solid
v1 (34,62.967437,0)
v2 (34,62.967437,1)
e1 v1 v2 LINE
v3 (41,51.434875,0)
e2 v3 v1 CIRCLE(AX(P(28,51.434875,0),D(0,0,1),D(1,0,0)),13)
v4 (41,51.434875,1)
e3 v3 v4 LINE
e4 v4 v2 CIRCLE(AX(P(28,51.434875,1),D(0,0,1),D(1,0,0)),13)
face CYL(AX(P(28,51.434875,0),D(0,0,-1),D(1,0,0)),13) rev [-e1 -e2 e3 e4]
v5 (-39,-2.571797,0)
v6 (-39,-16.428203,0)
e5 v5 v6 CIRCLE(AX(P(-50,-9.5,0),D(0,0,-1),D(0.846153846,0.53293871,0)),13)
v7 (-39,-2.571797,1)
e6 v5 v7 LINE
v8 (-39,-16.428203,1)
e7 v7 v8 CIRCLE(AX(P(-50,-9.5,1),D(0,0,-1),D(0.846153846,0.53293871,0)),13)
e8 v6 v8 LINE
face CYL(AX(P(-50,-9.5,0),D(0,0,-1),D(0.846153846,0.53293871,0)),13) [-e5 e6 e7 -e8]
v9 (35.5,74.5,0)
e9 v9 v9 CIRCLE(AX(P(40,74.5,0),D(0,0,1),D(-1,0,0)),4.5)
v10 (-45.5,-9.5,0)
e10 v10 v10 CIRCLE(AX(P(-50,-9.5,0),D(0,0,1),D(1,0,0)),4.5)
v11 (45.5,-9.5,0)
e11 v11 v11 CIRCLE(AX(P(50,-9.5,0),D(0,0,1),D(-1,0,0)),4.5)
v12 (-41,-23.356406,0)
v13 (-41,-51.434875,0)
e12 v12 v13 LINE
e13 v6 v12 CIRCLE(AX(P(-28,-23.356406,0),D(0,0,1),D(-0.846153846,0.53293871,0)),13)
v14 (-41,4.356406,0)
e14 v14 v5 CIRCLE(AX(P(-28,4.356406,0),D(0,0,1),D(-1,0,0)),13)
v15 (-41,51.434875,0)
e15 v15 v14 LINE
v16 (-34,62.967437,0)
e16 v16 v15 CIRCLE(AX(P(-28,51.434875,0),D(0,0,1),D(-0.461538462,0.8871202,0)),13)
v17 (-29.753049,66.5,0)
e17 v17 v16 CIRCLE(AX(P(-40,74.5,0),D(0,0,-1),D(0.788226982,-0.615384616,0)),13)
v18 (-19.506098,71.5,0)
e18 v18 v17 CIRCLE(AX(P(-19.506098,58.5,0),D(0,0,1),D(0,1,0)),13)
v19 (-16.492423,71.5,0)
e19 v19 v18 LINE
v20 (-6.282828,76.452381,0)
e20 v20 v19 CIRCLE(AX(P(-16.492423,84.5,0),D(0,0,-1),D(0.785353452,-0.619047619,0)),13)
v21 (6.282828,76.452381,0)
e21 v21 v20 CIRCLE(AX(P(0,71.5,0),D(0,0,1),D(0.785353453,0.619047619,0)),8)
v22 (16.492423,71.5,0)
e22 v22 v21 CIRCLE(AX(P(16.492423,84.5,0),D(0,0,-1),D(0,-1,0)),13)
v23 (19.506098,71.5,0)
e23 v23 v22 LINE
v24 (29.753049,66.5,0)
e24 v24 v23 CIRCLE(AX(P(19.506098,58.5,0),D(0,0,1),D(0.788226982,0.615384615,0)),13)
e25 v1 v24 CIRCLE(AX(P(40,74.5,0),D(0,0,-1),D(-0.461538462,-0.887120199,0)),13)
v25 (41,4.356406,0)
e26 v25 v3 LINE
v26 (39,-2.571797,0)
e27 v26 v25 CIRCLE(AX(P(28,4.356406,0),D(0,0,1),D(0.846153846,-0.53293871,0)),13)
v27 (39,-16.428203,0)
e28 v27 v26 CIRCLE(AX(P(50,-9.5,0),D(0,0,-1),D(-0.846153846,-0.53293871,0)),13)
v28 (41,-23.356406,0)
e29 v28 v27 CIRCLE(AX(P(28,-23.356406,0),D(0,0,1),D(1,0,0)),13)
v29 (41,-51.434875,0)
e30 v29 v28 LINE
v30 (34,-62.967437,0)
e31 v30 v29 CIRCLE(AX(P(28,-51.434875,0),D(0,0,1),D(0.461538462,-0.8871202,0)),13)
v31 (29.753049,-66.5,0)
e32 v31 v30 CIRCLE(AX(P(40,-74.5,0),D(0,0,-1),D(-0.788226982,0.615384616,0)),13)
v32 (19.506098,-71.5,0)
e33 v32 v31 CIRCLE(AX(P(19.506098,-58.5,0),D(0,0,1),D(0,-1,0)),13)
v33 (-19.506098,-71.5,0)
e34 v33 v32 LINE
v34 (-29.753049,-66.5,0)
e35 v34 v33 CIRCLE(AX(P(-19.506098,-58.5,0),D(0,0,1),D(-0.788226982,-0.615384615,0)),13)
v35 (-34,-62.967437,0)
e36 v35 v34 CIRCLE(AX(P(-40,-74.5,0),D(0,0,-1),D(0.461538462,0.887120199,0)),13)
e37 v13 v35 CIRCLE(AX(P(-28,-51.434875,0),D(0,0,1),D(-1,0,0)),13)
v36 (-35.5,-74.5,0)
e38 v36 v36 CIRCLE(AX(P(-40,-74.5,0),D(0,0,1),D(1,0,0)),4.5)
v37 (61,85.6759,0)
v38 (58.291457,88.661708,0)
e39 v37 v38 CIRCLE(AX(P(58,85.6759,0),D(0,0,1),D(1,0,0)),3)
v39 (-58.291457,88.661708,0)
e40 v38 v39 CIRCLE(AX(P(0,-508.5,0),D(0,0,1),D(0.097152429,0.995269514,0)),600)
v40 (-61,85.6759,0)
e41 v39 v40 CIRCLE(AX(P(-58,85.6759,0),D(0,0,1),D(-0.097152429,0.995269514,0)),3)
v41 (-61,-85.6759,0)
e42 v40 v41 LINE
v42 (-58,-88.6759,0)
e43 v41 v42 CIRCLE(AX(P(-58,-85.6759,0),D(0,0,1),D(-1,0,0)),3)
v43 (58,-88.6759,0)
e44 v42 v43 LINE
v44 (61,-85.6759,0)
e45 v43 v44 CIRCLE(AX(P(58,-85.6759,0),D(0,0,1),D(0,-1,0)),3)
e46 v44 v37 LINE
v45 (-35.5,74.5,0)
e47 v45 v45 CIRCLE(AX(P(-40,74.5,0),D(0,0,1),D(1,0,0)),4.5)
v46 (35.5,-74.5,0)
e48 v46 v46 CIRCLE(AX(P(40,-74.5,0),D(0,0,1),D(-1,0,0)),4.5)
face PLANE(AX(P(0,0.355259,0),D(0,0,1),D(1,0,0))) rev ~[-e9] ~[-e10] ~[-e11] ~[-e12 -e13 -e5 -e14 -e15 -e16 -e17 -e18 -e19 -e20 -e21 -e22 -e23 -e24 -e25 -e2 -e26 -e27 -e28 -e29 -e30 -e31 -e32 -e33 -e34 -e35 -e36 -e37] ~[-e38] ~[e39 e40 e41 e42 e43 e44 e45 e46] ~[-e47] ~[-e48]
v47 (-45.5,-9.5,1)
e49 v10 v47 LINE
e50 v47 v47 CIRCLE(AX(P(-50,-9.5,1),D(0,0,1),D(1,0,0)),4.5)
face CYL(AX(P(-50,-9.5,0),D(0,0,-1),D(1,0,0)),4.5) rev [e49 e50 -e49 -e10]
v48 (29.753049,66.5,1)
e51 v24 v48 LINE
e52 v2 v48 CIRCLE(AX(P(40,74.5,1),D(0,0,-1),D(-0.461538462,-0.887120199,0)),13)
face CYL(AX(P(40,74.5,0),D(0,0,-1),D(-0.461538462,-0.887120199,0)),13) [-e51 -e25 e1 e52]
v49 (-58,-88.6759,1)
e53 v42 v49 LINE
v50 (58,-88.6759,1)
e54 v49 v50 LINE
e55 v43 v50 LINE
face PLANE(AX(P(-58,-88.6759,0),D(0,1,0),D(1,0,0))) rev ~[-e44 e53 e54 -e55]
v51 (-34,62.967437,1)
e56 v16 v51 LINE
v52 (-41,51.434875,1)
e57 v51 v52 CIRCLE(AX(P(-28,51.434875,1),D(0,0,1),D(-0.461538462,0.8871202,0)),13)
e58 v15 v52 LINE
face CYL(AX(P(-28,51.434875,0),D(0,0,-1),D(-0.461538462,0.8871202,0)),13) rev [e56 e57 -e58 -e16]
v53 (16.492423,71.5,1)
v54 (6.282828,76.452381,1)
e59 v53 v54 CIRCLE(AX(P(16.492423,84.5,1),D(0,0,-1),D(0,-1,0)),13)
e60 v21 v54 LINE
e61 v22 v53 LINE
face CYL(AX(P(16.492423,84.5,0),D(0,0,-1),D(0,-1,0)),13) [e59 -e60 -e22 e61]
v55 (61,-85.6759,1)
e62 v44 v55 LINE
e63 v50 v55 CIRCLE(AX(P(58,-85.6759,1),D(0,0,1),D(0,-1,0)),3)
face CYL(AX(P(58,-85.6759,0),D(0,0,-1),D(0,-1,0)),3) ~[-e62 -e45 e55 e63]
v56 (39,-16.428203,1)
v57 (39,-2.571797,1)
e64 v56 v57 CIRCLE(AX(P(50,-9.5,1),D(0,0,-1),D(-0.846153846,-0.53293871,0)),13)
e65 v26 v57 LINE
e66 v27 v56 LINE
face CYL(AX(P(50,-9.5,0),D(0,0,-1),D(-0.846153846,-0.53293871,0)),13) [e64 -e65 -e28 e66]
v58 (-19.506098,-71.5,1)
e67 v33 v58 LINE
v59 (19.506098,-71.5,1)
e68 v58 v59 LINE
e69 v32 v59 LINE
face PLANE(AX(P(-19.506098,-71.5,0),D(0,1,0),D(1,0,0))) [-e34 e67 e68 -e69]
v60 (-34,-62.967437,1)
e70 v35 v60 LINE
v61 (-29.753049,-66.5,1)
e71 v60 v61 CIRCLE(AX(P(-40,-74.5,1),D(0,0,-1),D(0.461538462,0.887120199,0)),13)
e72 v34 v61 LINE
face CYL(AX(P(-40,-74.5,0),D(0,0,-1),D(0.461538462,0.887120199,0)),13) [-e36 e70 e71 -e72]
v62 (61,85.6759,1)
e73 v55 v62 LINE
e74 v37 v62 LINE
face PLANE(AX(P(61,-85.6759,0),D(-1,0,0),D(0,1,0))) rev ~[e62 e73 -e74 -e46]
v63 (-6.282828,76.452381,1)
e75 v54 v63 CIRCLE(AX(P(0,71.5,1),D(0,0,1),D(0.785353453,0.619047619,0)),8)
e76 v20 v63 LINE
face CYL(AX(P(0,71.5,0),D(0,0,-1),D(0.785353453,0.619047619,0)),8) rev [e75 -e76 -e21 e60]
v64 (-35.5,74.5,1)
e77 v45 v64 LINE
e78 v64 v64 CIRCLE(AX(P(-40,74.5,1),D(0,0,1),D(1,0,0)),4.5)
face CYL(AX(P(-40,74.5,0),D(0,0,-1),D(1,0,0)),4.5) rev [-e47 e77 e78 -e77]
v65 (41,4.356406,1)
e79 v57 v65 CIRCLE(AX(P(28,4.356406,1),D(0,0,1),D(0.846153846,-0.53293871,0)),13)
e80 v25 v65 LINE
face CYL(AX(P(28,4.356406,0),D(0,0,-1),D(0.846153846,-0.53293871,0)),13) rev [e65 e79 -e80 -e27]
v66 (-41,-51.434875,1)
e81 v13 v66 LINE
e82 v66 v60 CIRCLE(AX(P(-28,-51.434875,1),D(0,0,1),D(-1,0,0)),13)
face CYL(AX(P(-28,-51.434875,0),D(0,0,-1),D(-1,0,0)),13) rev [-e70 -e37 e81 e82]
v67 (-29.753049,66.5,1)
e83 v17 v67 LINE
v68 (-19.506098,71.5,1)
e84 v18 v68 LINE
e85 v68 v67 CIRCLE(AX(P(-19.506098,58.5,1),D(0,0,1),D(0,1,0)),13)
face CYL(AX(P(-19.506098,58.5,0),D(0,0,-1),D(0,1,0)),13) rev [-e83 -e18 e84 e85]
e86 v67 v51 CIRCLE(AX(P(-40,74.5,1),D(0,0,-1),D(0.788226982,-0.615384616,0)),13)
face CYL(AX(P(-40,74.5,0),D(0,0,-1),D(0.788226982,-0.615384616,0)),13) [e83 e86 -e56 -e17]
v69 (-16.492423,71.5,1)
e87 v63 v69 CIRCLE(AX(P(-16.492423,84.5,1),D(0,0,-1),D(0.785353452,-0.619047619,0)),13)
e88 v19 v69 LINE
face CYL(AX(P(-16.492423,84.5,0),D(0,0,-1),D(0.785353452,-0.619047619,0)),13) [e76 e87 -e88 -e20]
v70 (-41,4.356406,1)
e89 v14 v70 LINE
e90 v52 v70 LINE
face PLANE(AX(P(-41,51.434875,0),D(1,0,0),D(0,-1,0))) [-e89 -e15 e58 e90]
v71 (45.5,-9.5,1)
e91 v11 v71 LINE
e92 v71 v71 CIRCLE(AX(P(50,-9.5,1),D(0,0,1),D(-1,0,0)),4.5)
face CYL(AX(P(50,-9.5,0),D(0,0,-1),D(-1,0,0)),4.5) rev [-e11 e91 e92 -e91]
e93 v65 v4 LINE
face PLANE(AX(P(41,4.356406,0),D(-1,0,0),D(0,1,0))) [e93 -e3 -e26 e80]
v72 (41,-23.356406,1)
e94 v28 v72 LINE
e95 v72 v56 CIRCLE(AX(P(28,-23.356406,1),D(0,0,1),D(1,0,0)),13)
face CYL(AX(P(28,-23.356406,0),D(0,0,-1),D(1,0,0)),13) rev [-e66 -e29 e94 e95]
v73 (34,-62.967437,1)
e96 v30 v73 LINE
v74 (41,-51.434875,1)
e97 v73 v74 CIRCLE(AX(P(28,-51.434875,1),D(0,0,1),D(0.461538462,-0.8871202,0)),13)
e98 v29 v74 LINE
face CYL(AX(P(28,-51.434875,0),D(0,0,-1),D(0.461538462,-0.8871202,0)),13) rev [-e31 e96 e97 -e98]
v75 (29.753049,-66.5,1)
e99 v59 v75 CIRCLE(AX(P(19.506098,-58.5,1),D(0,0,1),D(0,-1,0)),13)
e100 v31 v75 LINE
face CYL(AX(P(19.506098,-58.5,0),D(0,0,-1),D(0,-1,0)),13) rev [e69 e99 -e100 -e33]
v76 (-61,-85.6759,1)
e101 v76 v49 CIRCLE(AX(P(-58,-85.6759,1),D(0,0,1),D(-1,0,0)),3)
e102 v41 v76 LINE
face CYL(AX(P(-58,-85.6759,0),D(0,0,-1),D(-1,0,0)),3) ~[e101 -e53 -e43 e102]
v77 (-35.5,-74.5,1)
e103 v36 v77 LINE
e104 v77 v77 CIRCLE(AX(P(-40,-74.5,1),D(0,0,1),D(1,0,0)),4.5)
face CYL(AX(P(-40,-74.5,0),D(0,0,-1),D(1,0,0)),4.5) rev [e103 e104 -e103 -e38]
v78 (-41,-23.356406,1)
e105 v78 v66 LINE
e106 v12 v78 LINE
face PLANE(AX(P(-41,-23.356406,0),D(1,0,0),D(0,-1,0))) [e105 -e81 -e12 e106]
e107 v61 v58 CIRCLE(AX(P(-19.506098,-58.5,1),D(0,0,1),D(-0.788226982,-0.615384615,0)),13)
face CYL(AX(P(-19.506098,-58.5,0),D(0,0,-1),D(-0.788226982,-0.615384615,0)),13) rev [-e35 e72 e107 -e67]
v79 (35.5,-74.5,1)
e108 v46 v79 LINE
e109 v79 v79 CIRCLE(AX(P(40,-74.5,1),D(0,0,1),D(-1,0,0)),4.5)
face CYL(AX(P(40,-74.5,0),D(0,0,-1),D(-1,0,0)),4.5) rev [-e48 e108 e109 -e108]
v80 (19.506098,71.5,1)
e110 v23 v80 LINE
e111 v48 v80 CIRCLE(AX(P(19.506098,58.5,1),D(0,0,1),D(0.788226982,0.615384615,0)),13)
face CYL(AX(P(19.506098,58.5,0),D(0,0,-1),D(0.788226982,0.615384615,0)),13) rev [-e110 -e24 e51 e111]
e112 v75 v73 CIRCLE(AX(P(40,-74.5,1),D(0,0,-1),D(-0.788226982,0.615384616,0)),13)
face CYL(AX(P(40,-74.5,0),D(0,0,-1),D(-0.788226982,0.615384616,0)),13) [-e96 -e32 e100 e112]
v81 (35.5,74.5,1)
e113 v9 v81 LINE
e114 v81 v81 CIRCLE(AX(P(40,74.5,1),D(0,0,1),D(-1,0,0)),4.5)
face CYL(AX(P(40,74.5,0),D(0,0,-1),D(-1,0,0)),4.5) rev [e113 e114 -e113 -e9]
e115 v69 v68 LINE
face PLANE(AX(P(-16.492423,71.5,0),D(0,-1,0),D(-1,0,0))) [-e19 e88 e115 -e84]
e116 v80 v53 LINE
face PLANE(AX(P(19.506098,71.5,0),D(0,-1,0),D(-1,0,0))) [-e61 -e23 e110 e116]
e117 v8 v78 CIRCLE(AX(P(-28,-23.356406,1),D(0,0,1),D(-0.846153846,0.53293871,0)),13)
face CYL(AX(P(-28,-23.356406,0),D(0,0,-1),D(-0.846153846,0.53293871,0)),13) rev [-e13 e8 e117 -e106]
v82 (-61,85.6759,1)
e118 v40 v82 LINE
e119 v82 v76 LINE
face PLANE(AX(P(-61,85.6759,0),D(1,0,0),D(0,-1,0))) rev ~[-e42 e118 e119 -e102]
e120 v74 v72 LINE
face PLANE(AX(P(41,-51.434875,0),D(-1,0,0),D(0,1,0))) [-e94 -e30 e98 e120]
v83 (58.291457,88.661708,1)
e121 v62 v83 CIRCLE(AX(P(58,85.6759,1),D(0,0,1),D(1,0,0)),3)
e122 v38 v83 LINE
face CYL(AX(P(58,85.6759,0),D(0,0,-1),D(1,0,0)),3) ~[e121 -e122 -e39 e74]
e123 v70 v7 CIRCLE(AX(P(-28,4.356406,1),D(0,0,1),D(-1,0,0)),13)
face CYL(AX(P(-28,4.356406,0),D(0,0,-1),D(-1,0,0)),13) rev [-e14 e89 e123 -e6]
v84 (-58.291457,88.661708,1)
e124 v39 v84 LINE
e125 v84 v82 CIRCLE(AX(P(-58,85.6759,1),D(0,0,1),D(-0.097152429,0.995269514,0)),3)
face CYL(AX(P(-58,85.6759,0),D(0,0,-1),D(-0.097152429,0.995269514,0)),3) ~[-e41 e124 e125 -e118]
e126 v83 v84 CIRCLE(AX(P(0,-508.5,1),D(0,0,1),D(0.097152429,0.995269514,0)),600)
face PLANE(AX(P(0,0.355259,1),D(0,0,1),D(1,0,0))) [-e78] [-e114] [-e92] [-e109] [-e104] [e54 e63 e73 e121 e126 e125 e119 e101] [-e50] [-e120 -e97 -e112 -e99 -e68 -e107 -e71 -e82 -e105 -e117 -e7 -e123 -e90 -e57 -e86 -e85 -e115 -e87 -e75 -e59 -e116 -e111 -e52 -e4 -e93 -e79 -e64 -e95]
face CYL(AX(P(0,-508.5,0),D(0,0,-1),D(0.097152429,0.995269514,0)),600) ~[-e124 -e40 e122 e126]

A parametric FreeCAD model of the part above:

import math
import FreeCAD as App
import Part
import Sketcher

V = App.Vector

doc = App.newDocument("Part")
body = doc.addObject("PartDesign::Body", "Body")

sketch1 = body.newObject("Sketcher::SketchObject", "Sketch")
sketch1.AttachmentSupport = (doc.getObject("XY_Plane"), [""])
sketch1.MapMode = "FlatFace"
sketch1.addGeometry([
    Part.LineSegment(V(-61, 85.7, 0), V(-61, -85.7, 0)),
    Part.ArcOfCircle(Part.Circle(V(-58, -85.7, 0), V(0, 0, 1), 3), math.radians(180), math.radians(270)),
    Part.LineSegment(V(-58, -88.7, 0), V(58, -88.7, 0)),
    Part.ArcOfCircle(Part.Circle(V(58, -85.7, 0), V(0, 0, 1), 3), math.radians(-90), math.radians(0)),
    Part.LineSegment(V(61, -85.7, 0), V(61, 85.7, 0)),
    Part.ArcOfCircle(Part.Circle(V(58, 85.7, 0), V(0, 0, 1), 3), math.radians(0), math.radians(84)),
    Part.ArcOfCircle(Part.Circle(V(0, -508.5, 0), V(0, 0, 1), 600), math.radians(84.42), math.radians(95.58)),
    Part.ArcOfCircle(Part.Circle(V(-58, 85.7, 0), V(0, 0, 1), 3), math.radians(96), math.radians(180)),
    Part.Circle(V(-40, -74.5, 0), V(0, 0, 1), 4.5),
    Part.Circle(V(-50, -9.5, 0), V(0, 0, 1), 4.5),
    Part.Circle(V(40, -74.5, 0), V(0, 0, 1), 4.5),
    Part.Circle(V(50, -9.5, 0), V(0, 0, 1), 4.5),
    Part.Circle(V(-40, 74.5, 0), V(0, 0, 1), 4.5),
    Part.LineSegment(V(-41, -51.4, 0), V(-41, -23.4, 0)),
    Part.ArcOfCircle(Part.Circle(V(-28, -23.4, 0), V(0, 0, 1), 13), math.radians(148), math.radians(180)),
    Part.ArcOfCircle(Part.Circle(V(-50, -9.5, 0), V(0, 0, 1), 13), math.radians(-32), math.radians(32)),
    Part.ArcOfCircle(Part.Circle(V(-28, 4.4, 0), V(0, 0, 1), 13), math.radians(180), math.radians(212)),
    Part.LineSegment(V(-41, 4.4, 0), V(-41, 51.4, 0)),
    Part.ArcOfCircle(Part.Circle(V(-28, 51.4, 0), V(0, 0, 1), 13), math.radians(117), math.radians(180)),
    Part.ArcOfCircle(Part.Circle(V(-40, 74.5, 0), V(0, 0, 1), 13), math.radians(-63), math.radians(-38)),
    Part.ArcOfCircle(Part.Circle(V(-19.5, 58.5, 0), V(0, 0, 1), 13), math.radians(90), math.radians(142)),
    Part.LineSegment(V(-19.5, 71.5, 0), V(-16.5, 71.5, 0)),
    Part.ArcOfCircle(Part.Circle(V(-16.5, 84.5, 0), V(0, 0, 1), 13), math.radians(-90), math.radians(-38)),
    Part.ArcOfCircle(Part.Circle(V(0, 71.5, 0), V(0, 0, 1), 8), math.radians(38), math.radians(142)),
    Part.ArcOfCircle(Part.Circle(V(16.5, 84.5, 0), V(0, 0, 1), 13), math.radians(-142), math.radians(-90)),
    Part.LineSegment(V(16.5, 71.5, 0), V(19.5, 71.5, 0)),
    Part.ArcOfCircle(Part.Circle(V(19.5, 58.5, 0), V(0, 0, 1), 13), math.radians(38), math.radians(90)),
    Part.ArcOfCircle(Part.Circle(V(40, 74.5, 0), V(0, 0, 1), 13), math.radians(-142), math.radians(-117)),
    Part.ArcOfCircle(Part.Circle(V(28, 51.4, 0), V(0, 0, 1), 13), math.radians(0), math.radians(63)),
    Part.LineSegment(V(41, 51.4, 0), V(41, 4.4, 0)),
    Part.ArcOfCircle(Part.Circle(V(28, 4.4, 0), V(0, 0, 1), 13), math.radians(-32), math.radians(0)),
    Part.ArcOfCircle(Part.Circle(V(50, -9.5, 0), V(0, 0, 1), 13), math.radians(148), math.radians(212)),
    Part.ArcOfCircle(Part.Circle(V(28, -23.4, 0), V(0, 0, 1), 13), math.radians(0), math.radians(32)),
    Part.LineSegment(V(41, -23.4, 0), V(41, -51.4, 0)),
    Part.ArcOfCircle(Part.Circle(V(28, -51.4, 0), V(0, 0, 1), 13), math.radians(-63), math.radians(0)),
    Part.ArcOfCircle(Part.Circle(V(40, -74.5, 0), V(0, 0, 1), 13), math.radians(117), math.radians(142)),
    Part.ArcOfCircle(Part.Circle(V(19.5, -58.5, 0), V(0, 0, 1), 13), math.radians(-90), math.radians(-38)),
    Part.LineSegment(V(19.5, -71.5, 0), V(-19.5, -71.5, 0)),
    Part.ArcOfCircle(Part.Circle(V(-19.5, -58.5, 0), V(0, 0, 1), 13), math.radians(-142), math.radians(-90)),
    Part.ArcOfCircle(Part.Circle(V(-40, -74.5, 0), V(0, 0, 1), 13), math.radians(38), math.radians(63)),
    Part.ArcOfCircle(Part.Circle(V(-28, -51.4, 0), V(0, 0, 1), 13), math.radians(-180), math.radians(-117)),
    Part.Circle(V(40, 74.5, 0), V(0, 0, 1), 4.5),
], False)
sketch1.addConstraint([
    Sketcher.Constraint("Tangent", 0, 2, 1, 1),
    Sketcher.Constraint("Tangent", 1, 2, 2, 1),
    Sketcher.Constraint("Tangent", 2, 2, 3, 1),
    Sketcher.Constraint("Tangent", 3, 2, 4, 1),
    Sketcher.Constraint("Tangent", 4, 2, 5, 1),
    Sketcher.Constraint("Tangent", 5, 2, 6, 1),
    Sketcher.Constraint("Tangent", 6, 2, 7, 1),
    Sketcher.Constraint("Tangent", 7, 2, 0, 1),
    Sketcher.Constraint("Tangent", 13, 2, 14, 2),
    Sketcher.Constraint("Tangent", 14, 1, 15, 1),
    Sketcher.Constraint("Tangent", 15, 2, 16, 2),
    Sketcher.Constraint("Tangent", 16, 1, 17, 1),
    Sketcher.Constraint("Tangent", 17, 2, 18, 2),
    Sketcher.Constraint("Tangent", 18, 1, 19, 1),
    Sketcher.Constraint("Tangent", 19, 2, 20, 2),
    Sketcher.Constraint("Tangent", 20, 1, 21, 1),
    Sketcher.Constraint("Tangent", 21, 2, 22, 1),
    Sketcher.Constraint("Tangent", 22, 2, 23, 2),
    Sketcher.Constraint("Tangent", 23, 1, 24, 1),
    Sketcher.Constraint("Tangent", 24, 2, 25, 1),
    Sketcher.Constraint("Tangent", 25, 2, 26, 2),
    Sketcher.Constraint("Tangent", 26, 1, 27, 1),
    Sketcher.Constraint("Tangent", 27, 2, 28, 2),
    Sketcher.Constraint("Tangent", 28, 1, 29, 1),
    Sketcher.Constraint("Tangent", 29, 2, 30, 2),
    Sketcher.Constraint("Tangent", 30, 1, 31, 1),
    Sketcher.Constraint("Tangent", 31, 2, 32, 2),
    Sketcher.Constraint("Tangent", 32, 1, 33, 1),
    Sketcher.Constraint("Tangent", 33, 2, 34, 2),
    Sketcher.Constraint("Tangent", 34, 1, 35, 1),
    Sketcher.Constraint("Tangent", 35, 2, 36, 2),
    Sketcher.Constraint("Tangent", 36, 1, 37, 1),
    Sketcher.Constraint("Tangent", 37, 2, 38, 2),
    Sketcher.Constraint("Tangent", 38, 1, 39, 1),
    Sketcher.Constraint("Tangent", 39, 2, 40, 2),
    Sketcher.Constraint("Tangent", 40, 1, 13, 1),
    Sketcher.Constraint("Vertical", 0),
    Sketcher.Constraint("Horizontal", 2),
    Sketcher.Constraint("Vertical", 4),
    Sketcher.Constraint("Vertical", 13),
    Sketcher.Constraint("Vertical", 17),
    Sketcher.Constraint("Horizontal", 21),
    Sketcher.Constraint("Horizontal", 25),
    Sketcher.Constraint("Vertical", 29),
    Sketcher.Constraint("Vertical", 33),
    Sketcher.Constraint("Horizontal", 37),
    Sketcher.Constraint("Coincident", 15, 3, 9, 3),
    Sketcher.Constraint("Coincident", 19, 3, 12, 3),
    Sketcher.Constraint("Coincident", 31, 3, 11, 3),
    Sketcher.Constraint("Coincident", 35, 3, 10, 3),
    Sketcher.Constraint("Coincident", 39, 3, 8, 3),
    Sketcher.Constraint("Coincident", 41, 3, 27, 3),
    Sketcher.Constraint("Equal", 1, 3),
    Sketcher.Constraint("Equal", 3, 5),
    Sketcher.Constraint("Equal", 5, 7),
    Sketcher.Constraint("Equal", 8, 9),
    Sketcher.Constraint("Equal", 9, 10),
    Sketcher.Constraint("Equal", 10, 11),
    Sketcher.Constraint("Equal", 11, 12),
    Sketcher.Constraint("Equal", 14, 15),
    Sketcher.Constraint("Equal", 15, 16),
    Sketcher.Constraint("Equal", 16, 18),
    Sketcher.Constraint("Equal", 18, 19),
    Sketcher.Constraint("Equal", 19, 20),
    Sketcher.Constraint("Equal", 20, 22),
    Sketcher.Constraint("Equal", 22, 24),
    Sketcher.Constraint("Equal", 24, 26),
    Sketcher.Constraint("Equal", 26, 27),
    Sketcher.Constraint("Equal", 27, 28),
    Sketcher.Constraint("Equal", 28, 30),
    Sketcher.Constraint("Equal", 30, 31),
    Sketcher.Constraint("Equal", 31, 32),
    Sketcher.Constraint("Equal", 32, 34),
    Sketcher.Constraint("Equal", 34, 35),
    Sketcher.Constraint("Equal", 35, 36),
    Sketcher.Constraint("Equal", 36, 38),
    Sketcher.Constraint("Equal", 38, 39),
    Sketcher.Constraint("Equal", 39, 40),
    Sketcher.Constraint("Equal", 12, 41),
    Sketcher.Constraint("Symmetric", 1, 3, 5, 3, -1, 1),
    Sketcher.Constraint("Symmetric", 10, 3, 12, 3, -1, 1),
    Sketcher.Constraint("Symmetric", 8, 3, 27, 3, -1, 1),
    Sketcher.Constraint("Symmetric", 8, 3, 10, 3, -2),
    Sketcher.Constraint("Symmetric", 9, 3, 11, 3, -2),
    Sketcher.Constraint("Symmetric", 22, 3, 24, 3, -2),
    Sketcher.Constraint("PointOnObject", 6, 3, -2),
    Sketcher.Constraint("Horizontal", 18, 3, 28, 3),
    Sketcher.Constraint("Horizontal", 14, 3, 32, 3),
    Sketcher.Constraint("Horizontal", 23, 3, 20, 1),
    Sketcher.Constraint("Vertical", 14, 3, 16, 3),
    Sketcher.Constraint("Vertical", 26, 3, 36, 3),
    Sketcher.Constraint("Diameter", 8, 9.0),
    Sketcher.Constraint("Radius", 1, 3.0),
    Sketcher.Constraint("Radius", 6, 600.0),
    Sketcher.Constraint("Radius", 14, 13.0),
    Sketcher.Constraint("Radius", 23, 8.0),
    Sketcher.Constraint("DistanceX", 2, 1, 2, 2, 116.0),
    Sketcher.Constraint("DistanceX", 8, 3, -1, 1, 40.0),
    Sketcher.Constraint("DistanceX", 9, 3, -1, 1, 50.0),
    Sketcher.Constraint("DistanceX", 14, 3, -1, 1, 28.0),
    Sketcher.Constraint("DistanceY", 6, 3, -1, 1, 508.5),
    Sketcher.Constraint("DistanceY", 8, 3, -1, 1, 74.5),
    Sketcher.Constraint("DistanceY", 9, 3, -1, 1, 9.5),
    Sketcher.Constraint("DistanceY", -1, 1, 20, 3, 58.5),
])
pad1 = body.newObject("PartDesign::Pad", "Pad")
pad1.Profile = sketch1
pad1.Length = 1

doc.recompute()
